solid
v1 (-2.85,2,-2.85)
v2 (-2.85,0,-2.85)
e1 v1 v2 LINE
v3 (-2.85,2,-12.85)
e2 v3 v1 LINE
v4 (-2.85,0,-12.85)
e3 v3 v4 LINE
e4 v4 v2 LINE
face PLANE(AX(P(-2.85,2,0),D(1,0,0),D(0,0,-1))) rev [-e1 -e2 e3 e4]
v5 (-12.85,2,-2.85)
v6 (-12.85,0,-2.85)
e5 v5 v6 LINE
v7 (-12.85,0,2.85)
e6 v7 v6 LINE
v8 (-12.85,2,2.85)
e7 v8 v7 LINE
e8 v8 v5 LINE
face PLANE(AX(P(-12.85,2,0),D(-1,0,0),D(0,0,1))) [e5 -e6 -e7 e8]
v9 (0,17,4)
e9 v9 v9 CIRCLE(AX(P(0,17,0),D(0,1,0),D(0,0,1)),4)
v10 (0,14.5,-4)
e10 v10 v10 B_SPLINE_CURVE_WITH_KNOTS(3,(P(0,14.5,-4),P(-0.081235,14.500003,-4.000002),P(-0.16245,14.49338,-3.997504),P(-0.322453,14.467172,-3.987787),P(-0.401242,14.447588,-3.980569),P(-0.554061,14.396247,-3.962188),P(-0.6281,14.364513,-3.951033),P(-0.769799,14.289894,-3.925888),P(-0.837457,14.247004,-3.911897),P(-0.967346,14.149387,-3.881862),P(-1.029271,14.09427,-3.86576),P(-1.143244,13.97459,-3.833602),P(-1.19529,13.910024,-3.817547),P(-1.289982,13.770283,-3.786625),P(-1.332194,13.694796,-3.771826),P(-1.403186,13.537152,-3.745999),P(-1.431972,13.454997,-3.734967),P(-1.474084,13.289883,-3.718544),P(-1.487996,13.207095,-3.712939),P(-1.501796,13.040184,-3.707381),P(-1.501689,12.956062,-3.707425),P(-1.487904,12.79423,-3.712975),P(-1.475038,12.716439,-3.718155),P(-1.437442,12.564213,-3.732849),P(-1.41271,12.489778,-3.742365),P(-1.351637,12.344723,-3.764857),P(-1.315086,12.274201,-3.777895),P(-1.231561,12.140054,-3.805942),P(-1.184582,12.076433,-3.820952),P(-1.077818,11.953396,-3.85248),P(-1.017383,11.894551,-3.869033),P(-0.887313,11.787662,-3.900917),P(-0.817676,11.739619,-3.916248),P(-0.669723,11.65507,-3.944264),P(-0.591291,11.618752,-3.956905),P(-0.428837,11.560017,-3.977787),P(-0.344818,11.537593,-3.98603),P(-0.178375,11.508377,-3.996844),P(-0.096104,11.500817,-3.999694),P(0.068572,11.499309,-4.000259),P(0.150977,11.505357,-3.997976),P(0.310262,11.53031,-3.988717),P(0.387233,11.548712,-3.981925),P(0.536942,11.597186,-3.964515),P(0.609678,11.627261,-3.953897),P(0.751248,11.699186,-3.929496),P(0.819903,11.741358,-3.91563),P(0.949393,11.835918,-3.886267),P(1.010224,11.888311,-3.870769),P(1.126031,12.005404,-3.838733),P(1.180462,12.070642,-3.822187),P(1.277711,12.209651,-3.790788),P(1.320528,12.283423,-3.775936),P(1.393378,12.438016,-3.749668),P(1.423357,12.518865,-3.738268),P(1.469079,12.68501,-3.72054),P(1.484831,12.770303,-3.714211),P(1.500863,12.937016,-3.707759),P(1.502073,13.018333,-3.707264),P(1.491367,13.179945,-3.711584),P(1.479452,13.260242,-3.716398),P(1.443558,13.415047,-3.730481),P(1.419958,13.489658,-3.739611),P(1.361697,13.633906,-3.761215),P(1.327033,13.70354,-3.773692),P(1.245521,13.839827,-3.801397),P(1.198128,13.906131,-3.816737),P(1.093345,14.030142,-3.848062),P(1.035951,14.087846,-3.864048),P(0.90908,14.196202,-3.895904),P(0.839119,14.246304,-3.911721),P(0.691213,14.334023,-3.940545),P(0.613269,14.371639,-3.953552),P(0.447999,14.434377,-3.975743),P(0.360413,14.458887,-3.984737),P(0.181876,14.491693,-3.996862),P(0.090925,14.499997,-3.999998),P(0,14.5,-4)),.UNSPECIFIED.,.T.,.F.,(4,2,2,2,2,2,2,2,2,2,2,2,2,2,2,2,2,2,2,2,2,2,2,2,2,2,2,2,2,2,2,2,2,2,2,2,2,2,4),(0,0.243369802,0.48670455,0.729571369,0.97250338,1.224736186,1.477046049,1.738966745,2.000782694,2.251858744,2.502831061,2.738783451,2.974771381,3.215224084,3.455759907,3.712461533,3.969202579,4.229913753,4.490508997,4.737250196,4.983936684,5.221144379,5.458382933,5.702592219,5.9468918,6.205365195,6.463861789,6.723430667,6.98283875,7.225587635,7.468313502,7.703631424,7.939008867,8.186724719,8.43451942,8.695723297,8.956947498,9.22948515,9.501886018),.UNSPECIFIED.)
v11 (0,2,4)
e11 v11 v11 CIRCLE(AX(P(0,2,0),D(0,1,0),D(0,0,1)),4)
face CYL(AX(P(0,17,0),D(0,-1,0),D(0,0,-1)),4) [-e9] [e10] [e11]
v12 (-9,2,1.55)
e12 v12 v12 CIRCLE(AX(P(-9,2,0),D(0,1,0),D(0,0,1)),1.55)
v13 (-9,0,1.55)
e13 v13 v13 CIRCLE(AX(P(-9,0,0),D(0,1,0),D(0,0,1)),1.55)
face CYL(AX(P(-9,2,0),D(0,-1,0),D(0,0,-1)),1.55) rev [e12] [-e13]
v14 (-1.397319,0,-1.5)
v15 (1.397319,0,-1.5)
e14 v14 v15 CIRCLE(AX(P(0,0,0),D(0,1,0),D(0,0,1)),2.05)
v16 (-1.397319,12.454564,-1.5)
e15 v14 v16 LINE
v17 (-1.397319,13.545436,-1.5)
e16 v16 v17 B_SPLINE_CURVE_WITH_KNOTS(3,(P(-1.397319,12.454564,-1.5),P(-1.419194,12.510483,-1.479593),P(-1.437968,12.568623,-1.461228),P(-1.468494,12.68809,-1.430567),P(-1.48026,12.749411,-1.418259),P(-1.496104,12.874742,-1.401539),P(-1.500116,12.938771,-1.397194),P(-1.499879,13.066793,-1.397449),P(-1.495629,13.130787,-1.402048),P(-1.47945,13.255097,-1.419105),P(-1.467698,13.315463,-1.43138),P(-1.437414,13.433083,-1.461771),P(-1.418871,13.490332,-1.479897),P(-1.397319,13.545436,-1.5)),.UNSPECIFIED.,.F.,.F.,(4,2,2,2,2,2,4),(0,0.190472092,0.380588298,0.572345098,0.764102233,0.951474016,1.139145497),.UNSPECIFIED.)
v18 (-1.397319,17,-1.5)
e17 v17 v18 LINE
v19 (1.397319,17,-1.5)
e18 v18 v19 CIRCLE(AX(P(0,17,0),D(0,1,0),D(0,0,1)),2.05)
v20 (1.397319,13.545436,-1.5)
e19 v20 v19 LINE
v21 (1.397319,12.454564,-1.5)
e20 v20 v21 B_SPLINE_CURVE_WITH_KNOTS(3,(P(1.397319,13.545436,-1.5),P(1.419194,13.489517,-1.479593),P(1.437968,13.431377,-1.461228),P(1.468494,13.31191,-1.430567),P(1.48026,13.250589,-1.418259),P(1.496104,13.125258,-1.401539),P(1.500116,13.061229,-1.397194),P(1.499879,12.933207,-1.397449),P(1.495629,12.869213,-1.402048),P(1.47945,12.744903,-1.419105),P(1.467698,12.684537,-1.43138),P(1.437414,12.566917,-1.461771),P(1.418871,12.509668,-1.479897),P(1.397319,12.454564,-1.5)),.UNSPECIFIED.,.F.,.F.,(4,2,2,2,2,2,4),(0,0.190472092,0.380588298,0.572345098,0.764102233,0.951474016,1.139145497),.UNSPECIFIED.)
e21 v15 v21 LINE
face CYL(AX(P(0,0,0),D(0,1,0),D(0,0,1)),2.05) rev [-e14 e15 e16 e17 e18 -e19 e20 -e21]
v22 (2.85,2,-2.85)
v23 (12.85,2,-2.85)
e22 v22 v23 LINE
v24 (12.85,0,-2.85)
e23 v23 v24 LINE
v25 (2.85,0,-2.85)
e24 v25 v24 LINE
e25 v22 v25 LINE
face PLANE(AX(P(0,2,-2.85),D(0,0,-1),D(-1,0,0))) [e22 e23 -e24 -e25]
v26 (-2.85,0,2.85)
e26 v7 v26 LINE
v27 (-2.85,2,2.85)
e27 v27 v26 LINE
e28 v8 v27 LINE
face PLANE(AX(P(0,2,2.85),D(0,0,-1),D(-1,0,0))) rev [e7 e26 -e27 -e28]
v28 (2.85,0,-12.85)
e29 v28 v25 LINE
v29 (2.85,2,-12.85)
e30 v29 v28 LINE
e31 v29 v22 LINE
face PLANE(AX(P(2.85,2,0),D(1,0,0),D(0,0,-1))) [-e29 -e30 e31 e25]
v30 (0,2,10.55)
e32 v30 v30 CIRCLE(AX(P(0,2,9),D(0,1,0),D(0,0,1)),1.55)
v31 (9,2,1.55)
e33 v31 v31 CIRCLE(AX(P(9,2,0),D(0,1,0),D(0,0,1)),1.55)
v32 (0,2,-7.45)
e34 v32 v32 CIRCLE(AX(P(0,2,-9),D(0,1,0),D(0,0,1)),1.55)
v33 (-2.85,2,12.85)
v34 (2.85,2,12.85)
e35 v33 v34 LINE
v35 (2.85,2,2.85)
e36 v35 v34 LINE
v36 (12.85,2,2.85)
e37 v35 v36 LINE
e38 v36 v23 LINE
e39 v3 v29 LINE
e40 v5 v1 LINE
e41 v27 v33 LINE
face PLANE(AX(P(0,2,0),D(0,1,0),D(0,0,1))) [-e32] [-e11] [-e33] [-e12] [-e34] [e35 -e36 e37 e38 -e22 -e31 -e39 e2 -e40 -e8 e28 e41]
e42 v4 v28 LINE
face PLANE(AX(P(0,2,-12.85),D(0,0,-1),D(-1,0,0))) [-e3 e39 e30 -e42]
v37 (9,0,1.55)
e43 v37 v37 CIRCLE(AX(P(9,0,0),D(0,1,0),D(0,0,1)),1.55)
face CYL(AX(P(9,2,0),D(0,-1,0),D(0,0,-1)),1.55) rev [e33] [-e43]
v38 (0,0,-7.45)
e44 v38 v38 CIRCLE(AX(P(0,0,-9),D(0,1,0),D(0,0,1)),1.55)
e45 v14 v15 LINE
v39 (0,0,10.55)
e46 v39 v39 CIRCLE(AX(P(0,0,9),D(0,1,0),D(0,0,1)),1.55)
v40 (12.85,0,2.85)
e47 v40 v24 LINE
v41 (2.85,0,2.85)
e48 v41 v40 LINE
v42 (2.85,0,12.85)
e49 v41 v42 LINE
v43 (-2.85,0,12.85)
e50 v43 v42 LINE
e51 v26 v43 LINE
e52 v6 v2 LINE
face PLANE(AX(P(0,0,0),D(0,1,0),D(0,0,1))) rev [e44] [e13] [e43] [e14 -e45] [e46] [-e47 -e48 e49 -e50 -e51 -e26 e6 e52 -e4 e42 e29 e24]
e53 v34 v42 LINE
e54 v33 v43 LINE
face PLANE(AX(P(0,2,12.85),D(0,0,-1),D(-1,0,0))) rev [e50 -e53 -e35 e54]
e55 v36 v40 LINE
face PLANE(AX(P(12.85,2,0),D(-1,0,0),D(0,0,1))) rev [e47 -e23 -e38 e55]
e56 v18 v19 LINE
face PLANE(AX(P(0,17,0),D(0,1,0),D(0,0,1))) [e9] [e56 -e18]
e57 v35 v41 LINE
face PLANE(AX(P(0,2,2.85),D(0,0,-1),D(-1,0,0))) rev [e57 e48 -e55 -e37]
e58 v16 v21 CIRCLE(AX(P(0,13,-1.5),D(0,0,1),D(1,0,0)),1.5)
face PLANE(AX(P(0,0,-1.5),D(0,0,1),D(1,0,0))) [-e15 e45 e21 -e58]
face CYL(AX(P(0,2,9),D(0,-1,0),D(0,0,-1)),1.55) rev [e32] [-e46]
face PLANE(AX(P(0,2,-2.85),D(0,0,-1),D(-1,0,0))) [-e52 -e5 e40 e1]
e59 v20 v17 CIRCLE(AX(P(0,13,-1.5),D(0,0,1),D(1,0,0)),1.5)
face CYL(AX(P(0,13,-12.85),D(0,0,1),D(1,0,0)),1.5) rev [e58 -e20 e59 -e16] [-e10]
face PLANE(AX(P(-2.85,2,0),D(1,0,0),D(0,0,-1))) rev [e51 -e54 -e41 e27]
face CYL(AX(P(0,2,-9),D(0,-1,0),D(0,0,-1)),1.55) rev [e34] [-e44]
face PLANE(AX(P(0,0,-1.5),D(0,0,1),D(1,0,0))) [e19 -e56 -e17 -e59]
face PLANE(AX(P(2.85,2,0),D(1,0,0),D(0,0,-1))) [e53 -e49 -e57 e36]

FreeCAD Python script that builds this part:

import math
import FreeCAD as App
import Part
import Sketcher
from FreeCAD import Vector
Q = App.Units.Quantity

doc = App.newDocument("Part")
params = doc.addObject("Spreadsheet::Sheet", "Params")
for row, (alias, value) in enumerate([
    ("sketch1_diameter", "3.1 mm"),
    ("sketch1_width", "10 mm"),
    ("sketch1_width2", "5.7 mm"),
    ("pad1_length", "2 mm"),
    ("sketch2_diameter", "8 mm"),
    ("pad2_length", "15 mm"),
    ("sketch3_radius", "2.05 mm"),
    ("sketch4_diameter", "3 mm"),
    ("sketch5_diameter", "3 mm"),
    ("pocket3_length", "1 mm"),
], start=1):
    params.set(f"A{row}", alias)
    params.set(f"B{row}", "=" + value)
    params.setAlias(f"B{row}", alias)

body = doc.addObject("PartDesign::Body", "Body")

# Sketch on XZ plane
sketch1 = doc.addObject("Sketcher::SketchObject", "Sketch")
body.addObject(sketch1)
sketch1.AttachmentSupport = (doc.XZ_Plane, [""])
sketch1.MapMode = "FlatFace"
sketch1.addGeometry([
    Part.LineSegment(Vector(-12.8, -2.9, 0), Vector(-12.8, 2.9, 0)),  # 0
    Part.LineSegment(Vector(-12.8, 2.9, 0), Vector(-2.9, 2.9, 0)),  # 1
    Part.LineSegment(Vector(-2.9, 2.9, 0), Vector(-2.9, 12.8, 0)),  # 2
    Part.LineSegment(Vector(-2.9, 12.8, 0), Vector(2.9, 12.8, 0)),  # 3
    Part.LineSegment(Vector(2.9, 12.8, 0), Vector(2.9, 2.9, 0)),  # 4
    Part.LineSegment(Vector(2.9, 2.9, 0), Vector(12.8, 2.9, 0)),  # 5
    Part.LineSegment(Vector(12.8, 2.9, 0), Vector(12.8, -2.9, 0)),  # 6
    Part.LineSegment(Vector(12.8, -2.9, 0), Vector(2.9, -2.9, 0)),  # 7
    Part.LineSegment(Vector(2.9, -2.9, 0), Vector(2.9, -12.8, 0)),  # 8
    Part.LineSegment(Vector(2.9, -12.8, 0), Vector(-2.9, -12.8, 0)),  # 9
    Part.LineSegment(Vector(-2.9, -12.8, 0), Vector(-2.9, -2.9, 0)),  # 10
    Part.LineSegment(Vector(-2.9, -2.9, 0), Vector(-12.8, -2.9, 0)),  # 11
    Part.Circle(Vector(-9, 0, 0), Vector(0, 0, 1), 1.6),  # 12
    Part.Circle(Vector(0, 9, 0), Vector(0, 0, 1), 1.6),  # 13
    Part.Circle(Vector(0, -9, 0), Vector(0, 0, 1), 1.6),  # 14
    Part.Circle(Vector(9, 0, 0), Vector(0, 0, 1), 1.6),  # 15
], False)
sketch1.addConstraint([
    Sketcher.Constraint("Coincident", 0, 2, 1, 1),
    Sketcher.Constraint("Coincident", 1, 2, 2, 1),
    Sketcher.Constraint("Coincident", 2, 2, 3, 1),
    Sketcher.Constraint("Coincident", 3, 2, 4, 1),
    Sketcher.Constraint("Coincident", 4, 2, 5, 1),
    Sketcher.Constraint("Coincident", 5, 2, 6, 1),
    Sketcher.Constraint("Coincident", 6, 2, 7, 1),
    Sketcher.Constraint("Coincident", 7, 2, 8, 1),
    Sketcher.Constraint("Coincident", 8, 2, 9, 1),
    Sketcher.Constraint("Coincident", 9, 2, 10, 1),
    Sketcher.Constraint("Coincident", 10, 2, 11, 1),
    Sketcher.Constraint("Coincident", 11, 2, 0, 1),
    Sketcher.Constraint("Vertical", 0),
    Sketcher.Constraint("Horizontal", 1),
    Sketcher.Constraint("Vertical", 2),
    Sketcher.Constraint("Horizontal", 3),
    Sketcher.Constraint("Vertical", 4),
    Sketcher.Constraint("Horizontal", 5),
    Sketcher.Constraint("Vertical", 6),
    Sketcher.Constraint("Horizontal", 7),
    Sketcher.Constraint("Vertical", 8),
    Sketcher.Constraint("Horizontal", 9),
    Sketcher.Constraint("Vertical", 10),
    Sketcher.Constraint("Horizontal", 11),
    Sketcher.Constraint("Equal", 12, 13),
    Sketcher.Constraint("Equal", 13, 14),
    Sketcher.Constraint("Equal", 14, 15),
    Sketcher.Constraint("Symmetric", 13, 3, 14, 3, -1, 1),
    Sketcher.Constraint("Symmetric", 12, 3, 15, 3, -1, 1),
    Sketcher.Constraint("Symmetric", 0, 2, 6, 2, -1, 1),
    Sketcher.Constraint("Symmetric", 2, 2, 8, 2, -1, 1),
    Sketcher.Constraint("Symmetric", 4, 2, 10, 2, -1, 1),
    Sketcher.Constraint("Symmetric", 1, 2, 4, 2, -2),
    Sketcher.Constraint("PointOnObject", 12, 3, -1),
    Sketcher.Constraint("PointOnObject", 13, 3, -2),
    Sketcher.Constraint("Equal", 9, 0),
    Sketcher.Constraint("Equal", 11, 2),
    Sketcher.Constraint("Diameter", 12, Q("3.1 mm")),
    Sketcher.Constraint("DistanceX", 1, 1, 1, 2, Q("10 mm")),
    Sketcher.Constraint("DistanceX", 3, 1, 3, 2, Q("5.7 mm")),
    Sketcher.Constraint("DistanceX", 12, 3, -1, 1, Q("9 mm")),
    Sketcher.Constraint("DistanceY", -1, 1, 13, 3, Q("9 mm")),
])
sketch1.setExpression("Constraints[37]", "Params.sketch1_diameter")
sketch1.setExpression("Constraints[38]", "Params.sketch1_width")
sketch1.setExpression("Constraints[39]", "Params.sketch1_width2")
pad1 = doc.addObject("PartDesign::Pad", "Pad")
body.addObject(pad1)
pad1.Profile = sketch1
pad1.setExpression("Length", "Params.pad1_length")
pad1.Reversed = True

# Sketch on XZ plane
sketch2 = doc.addObject("Sketcher::SketchObject", "Sketch001")
body.addObject(sketch2)
sketch2.AttachmentSupport = (doc.XZ_Plane, [""])
sketch2.MapMode = "FlatFace"
sketch2.AttachmentOffset = App.Placement(Vector(0, 0, -2), App.Rotation())
sketch2.addGeometry(Part.Circle(Vector(0, 0, 0), Vector(0, 0, 1), 4), False)
sketch2.addConstraint([
    Sketcher.Constraint("Coincident", 0, 3, -1, 1),
    Sketcher.Constraint("Diameter", 0, Q("8 mm")),
])
sketch2.setExpression("Constraints[1]", "Params.sketch2_diameter")
pad2 = doc.addObject("PartDesign::Pad", "Pad001")
body.addObject(pad2)
pad2.Profile = sketch2
pad2.setExpression("Length", "Params.pad2_length")
pad2.Reversed = True

# Sketch on XZ plane
sketch3 = doc.addObject("Sketcher::SketchObject", "Sketch002")
body.addObject(sketch3)
sketch3.AttachmentSupport = (doc.XZ_Plane, [""])
sketch3.MapMode = "FlatFace"
sketch3.AttachmentOffset = App.Placement(Vector(0, 0, -17), App.Rotation())
sketch3.addGeometry([
    Part.ArcOfCircle(Part.Circle(Vector(0, 0, 0), Vector(0, 0, 1), 2), math.radians(0), math.radians(227)),
    Part.ArcOfCircle(Part.Circle(Vector(0, 0, 0), Vector(0, 0, 1), 2), math.radians(-47), math.radians(0)),
    Part.LineSegment(Vector(1.4, -1.5, 0), Vector(-1.4, -1.5, 0)),
], False)
sketch3.addConstraint([
    Sketcher.Constraint("Tangent", 0, 1, 1, 2),
    Sketcher.Constraint("Coincident", 1, 1, 2, 1),
    Sketcher.Constraint("Coincident", 2, 2, 0, 2),
    Sketcher.Constraint("Horizontal", 2),
    Sketcher.Constraint("Coincident", 0, 3, -1, 1),
    Sketcher.Constraint("Equal", 0, 1),
    Sketcher.Constraint("PointOnObject", 0, 1, -1),
    Sketcher.Constraint("Radius", 0, Q("2.05 mm")),
    Sketcher.Constraint("DistanceY", 1, 1, -1, 1, Q("1.5 mm")),
])
sketch3.setExpression("Constraints[7]", "Params.sketch3_radius")
pocket1 = doc.addObject("PartDesign::Pocket", "Pocket")
body.addObject(pocket1)
pocket1.Profile = sketch3
pocket1.Type = "ThroughAll"
pocket1.Reversed = True

# Sketch on XY plane
sketch4 = doc.addObject("Sketcher::SketchObject", "Sketch003")
body.addObject(sketch4)
sketch4.AttachmentSupport = (doc.XY_Plane, [""])
sketch4.MapMode = "FlatFace"
sketch4.AttachmentOffset = App.Placement(Vector(0, 0, -1.5), App.Rotation())
sketch4.addGeometry(Part.Circle(Vector(0, 13, 0), Vector(0, 0, 1), 1.5), False)
sketch4.addConstraint([
    Sketcher.Constraint("PointOnObject", 0, 3, -2),
    Sketcher.Constraint("Diameter", 0, Q("3 mm")),
    Sketcher.Constraint("DistanceY", -1, 1, 0, 3, Q("13 mm")),
])
sketch4.setExpression("Constraints[1]", "Params.sketch4_diameter")
pocket2 = doc.addObject("PartDesign::Pocket", "Pocket001")
body.addObject(pocket2)
pocket2.Profile = sketch4
pocket2.Type = "ThroughAll"

# Sketch on XY plane
sketch5 = doc.addObject("Sketcher::SketchObject", "Sketch004")
body.addObject(sketch5)
sketch5.AttachmentSupport = (doc.XY_Plane, [""])
sketch5.MapMode = "FlatFace"
sketch5.AttachmentOffset = App.Placement(Vector(0, 0, -0.5), App.Rotation())
sketch5.addGeometry(Part.Circle(Vector(0, 13, 0), Vector(0, 0, 1), 1.5), False)
sketch5.addConstraint([
    Sketcher.Constraint("PointOnObject", 0, 3, -2),
    Sketcher.Constraint("Diameter", 0, Q("3 mm")),
    Sketcher.Constraint("DistanceY", -1, 1, 0, 3, Q("13 mm")),
])
sketch5.setExpression("Constraints[1]", "Params.sketch5_diameter")
pocket3 = doc.addObject("PartDesign::Pocket", "Pocket002")
body.addObject(pocket3)
pocket3.Profile = sketch5
pocket3.setExpression("Length", "Params.pocket3_length")

doc.recompute()
